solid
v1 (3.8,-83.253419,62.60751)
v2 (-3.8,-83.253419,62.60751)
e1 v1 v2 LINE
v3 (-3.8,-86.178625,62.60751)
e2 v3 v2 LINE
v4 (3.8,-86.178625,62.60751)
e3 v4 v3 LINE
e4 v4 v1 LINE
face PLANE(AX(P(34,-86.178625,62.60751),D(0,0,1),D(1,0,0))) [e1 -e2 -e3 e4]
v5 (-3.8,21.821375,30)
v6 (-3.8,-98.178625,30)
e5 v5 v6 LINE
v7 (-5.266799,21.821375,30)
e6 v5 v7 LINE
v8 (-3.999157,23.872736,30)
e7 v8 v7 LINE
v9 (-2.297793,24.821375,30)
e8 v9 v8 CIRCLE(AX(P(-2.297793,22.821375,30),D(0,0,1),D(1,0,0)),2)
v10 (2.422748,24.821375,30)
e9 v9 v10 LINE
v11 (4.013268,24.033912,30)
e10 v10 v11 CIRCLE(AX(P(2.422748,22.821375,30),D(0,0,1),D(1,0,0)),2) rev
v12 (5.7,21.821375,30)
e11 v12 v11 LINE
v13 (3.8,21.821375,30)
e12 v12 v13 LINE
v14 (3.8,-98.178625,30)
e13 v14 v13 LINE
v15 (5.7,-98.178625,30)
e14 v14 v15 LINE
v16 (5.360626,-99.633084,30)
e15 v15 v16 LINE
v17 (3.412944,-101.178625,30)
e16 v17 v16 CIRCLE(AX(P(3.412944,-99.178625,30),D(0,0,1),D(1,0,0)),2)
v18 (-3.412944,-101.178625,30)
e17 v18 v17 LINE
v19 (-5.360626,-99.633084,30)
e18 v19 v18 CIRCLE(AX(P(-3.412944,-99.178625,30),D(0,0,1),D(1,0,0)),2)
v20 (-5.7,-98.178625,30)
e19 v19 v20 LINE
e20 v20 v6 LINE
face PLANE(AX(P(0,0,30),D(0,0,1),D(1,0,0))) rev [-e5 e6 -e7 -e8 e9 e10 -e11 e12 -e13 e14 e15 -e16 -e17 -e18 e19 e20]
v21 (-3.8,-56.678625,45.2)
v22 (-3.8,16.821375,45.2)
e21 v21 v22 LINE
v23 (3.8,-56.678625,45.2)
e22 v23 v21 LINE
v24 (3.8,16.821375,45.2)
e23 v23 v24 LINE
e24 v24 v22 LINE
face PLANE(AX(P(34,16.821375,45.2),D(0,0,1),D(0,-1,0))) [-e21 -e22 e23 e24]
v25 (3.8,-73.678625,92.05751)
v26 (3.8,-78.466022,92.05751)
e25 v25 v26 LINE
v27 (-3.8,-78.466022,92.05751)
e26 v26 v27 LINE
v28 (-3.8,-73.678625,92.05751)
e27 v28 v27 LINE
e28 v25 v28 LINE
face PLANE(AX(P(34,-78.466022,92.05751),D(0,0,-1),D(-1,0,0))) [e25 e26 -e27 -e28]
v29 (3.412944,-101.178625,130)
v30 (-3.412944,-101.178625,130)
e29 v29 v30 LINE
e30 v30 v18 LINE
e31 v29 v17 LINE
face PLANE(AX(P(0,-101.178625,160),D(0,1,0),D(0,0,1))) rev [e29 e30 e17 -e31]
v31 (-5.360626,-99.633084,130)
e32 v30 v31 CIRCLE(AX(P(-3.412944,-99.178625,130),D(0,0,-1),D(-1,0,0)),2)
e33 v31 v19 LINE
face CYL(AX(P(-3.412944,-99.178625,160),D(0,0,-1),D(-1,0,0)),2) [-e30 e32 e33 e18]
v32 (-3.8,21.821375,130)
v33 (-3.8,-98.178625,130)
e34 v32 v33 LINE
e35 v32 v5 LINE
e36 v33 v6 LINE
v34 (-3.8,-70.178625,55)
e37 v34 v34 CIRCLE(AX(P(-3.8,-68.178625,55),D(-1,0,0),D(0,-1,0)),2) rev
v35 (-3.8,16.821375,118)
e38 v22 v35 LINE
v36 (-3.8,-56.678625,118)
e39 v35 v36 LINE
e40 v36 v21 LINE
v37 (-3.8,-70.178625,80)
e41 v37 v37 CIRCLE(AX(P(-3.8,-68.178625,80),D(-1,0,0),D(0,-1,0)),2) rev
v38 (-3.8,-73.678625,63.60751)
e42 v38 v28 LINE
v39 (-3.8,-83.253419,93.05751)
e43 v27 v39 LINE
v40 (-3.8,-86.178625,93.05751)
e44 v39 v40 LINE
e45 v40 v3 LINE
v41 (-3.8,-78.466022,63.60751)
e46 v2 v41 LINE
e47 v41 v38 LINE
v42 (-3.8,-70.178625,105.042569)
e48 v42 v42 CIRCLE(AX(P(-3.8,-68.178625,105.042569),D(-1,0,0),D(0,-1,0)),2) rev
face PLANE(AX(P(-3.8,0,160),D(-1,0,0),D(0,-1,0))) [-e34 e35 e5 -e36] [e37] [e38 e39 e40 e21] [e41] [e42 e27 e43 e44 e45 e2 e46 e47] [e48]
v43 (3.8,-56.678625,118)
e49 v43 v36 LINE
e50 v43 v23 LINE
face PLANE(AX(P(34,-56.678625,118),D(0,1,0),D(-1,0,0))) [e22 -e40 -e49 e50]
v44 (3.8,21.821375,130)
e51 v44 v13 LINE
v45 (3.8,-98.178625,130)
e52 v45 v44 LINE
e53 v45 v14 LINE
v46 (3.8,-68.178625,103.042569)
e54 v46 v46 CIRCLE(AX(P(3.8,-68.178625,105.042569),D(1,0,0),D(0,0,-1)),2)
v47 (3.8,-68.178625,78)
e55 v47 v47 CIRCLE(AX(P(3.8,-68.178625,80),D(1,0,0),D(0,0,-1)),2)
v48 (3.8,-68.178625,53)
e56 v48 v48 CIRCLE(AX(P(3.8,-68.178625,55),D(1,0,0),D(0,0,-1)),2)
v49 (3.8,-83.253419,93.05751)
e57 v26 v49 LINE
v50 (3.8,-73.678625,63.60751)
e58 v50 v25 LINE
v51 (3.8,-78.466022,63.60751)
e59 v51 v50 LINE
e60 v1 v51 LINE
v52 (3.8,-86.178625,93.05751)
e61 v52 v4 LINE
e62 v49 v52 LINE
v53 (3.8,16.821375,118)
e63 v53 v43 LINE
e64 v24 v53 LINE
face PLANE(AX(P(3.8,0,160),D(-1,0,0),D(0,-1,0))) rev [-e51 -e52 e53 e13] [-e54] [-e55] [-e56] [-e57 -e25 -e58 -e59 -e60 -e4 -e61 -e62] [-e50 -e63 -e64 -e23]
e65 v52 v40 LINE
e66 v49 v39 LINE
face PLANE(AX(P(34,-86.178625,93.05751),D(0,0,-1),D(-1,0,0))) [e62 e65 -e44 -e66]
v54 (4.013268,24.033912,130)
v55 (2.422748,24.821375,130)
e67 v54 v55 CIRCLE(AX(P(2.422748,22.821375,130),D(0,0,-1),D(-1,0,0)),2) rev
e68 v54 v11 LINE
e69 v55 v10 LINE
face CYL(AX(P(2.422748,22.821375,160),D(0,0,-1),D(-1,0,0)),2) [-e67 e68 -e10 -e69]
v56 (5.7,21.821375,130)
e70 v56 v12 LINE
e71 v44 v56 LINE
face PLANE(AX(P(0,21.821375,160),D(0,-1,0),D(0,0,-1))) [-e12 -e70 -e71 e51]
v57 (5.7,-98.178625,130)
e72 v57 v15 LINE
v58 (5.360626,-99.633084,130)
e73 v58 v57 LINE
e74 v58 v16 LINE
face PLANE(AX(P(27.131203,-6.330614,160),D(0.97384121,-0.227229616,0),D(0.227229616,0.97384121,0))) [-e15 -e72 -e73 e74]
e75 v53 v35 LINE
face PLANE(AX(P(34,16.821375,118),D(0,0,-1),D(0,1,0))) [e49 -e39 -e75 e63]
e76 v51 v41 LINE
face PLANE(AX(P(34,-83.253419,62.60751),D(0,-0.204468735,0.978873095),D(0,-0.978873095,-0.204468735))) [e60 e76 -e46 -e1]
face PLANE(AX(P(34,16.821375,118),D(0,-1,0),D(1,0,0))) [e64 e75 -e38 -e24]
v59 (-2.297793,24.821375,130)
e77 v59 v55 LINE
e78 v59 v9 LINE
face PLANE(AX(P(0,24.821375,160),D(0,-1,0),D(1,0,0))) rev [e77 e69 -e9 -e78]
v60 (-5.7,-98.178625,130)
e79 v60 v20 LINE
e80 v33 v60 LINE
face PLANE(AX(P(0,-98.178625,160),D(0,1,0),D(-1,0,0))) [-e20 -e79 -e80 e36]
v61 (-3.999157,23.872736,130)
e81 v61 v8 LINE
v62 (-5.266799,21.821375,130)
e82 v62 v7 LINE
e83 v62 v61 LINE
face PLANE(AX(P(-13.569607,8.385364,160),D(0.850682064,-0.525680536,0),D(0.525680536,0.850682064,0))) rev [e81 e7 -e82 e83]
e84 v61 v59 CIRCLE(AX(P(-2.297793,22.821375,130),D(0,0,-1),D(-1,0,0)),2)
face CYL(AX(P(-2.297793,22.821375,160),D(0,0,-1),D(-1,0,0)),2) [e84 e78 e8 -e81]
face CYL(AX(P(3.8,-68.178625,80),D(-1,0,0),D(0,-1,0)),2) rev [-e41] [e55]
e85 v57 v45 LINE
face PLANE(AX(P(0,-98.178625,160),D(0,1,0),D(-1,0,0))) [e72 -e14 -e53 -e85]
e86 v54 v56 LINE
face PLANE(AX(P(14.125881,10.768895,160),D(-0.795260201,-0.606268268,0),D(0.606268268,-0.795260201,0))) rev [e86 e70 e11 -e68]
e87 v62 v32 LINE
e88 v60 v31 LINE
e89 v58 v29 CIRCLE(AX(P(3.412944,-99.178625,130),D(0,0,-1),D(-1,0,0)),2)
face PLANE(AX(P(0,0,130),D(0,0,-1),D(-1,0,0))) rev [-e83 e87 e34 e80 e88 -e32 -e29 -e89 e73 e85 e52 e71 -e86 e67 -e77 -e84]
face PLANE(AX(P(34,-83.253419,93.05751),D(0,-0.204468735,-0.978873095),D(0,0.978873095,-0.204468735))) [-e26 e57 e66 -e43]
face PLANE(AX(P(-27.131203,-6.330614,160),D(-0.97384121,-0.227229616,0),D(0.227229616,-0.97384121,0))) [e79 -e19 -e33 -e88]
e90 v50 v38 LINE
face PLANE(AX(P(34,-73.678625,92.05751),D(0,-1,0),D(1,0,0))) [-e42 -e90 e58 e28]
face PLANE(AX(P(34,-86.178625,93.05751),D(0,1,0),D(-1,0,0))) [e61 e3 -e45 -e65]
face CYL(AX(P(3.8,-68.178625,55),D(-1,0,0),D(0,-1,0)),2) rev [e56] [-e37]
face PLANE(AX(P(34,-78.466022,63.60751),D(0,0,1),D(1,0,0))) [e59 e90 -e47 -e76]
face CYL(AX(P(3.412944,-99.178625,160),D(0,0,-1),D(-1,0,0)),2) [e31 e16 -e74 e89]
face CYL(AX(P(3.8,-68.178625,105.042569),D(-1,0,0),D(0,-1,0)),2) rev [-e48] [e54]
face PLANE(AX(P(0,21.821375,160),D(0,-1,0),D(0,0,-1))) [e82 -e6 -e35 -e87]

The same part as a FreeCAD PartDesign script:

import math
import FreeCAD as App
import Part
import Sketcher
from FreeCAD import Vector

doc = App.newDocument("Part")
body = doc.addObject("PartDesign::Body", "Body")

sketch1 = body.newObject("Sketcher::SketchObject", "Sketch")
sketch1.AttachmentSupport = (doc.getObject("XY_Plane"), [""])
sketch1.MapMode = "FlatFace"
sketch1.addGeometry(Part.LineSegment(Vector(-3.8, 21.8, 0), Vector(-3.8, -98.2, 0)), False)
sketch1.addGeometry(Part.LineSegment(Vector(-3.8, -98.2, 0), Vector(-5.7, -98.2, 0)), False)
sketch1.addGeometry(Part.LineSegment(Vector(-5.7, -98.2, 0), Vector(-5.4, -99.6, 0)), False)
sketch1.addGeometry(Part.ArcOfCircle(Part.Circle(Vector(-3.4, -99.2, 0), Vector(0, 0, 1), 2), math.radians(-167), math.radians(-90)), False)
sketch1.addGeometry(Part.LineSegment(Vector(-3.4, -101.2, 0), Vector(3.4, -101.2, 0)), False)
sketch1.addGeometry(Part.ArcOfCircle(Part.Circle(Vector(3.4, -99.2, 0), Vector(0, 0, 1), 2), math.radians(-90), math.radians(-13)), False)
sketch1.addGeometry(Part.LineSegment(Vector(5.4, -99.6, 0), Vector(5.7, -98.2, 0)), False)
sketch1.addGeometry(Part.LineSegment(Vector(5.7, -98.2, 0), Vector(3.8, -98.2, 0)), False)
sketch1.addGeometry(Part.LineSegment(Vector(3.8, -98.2, 0), Vector(3.8, 21.8, 0)), False)
sketch1.addGeometry(Part.LineSegment(Vector(3.8, 21.8, 0), Vector(5.7, 21.8, 0)), False)
sketch1.addGeometry(Part.LineSegment(Vector(5.7, 21.8, 0), Vector(4, 24, 0)), False)
sketch1.addGeometry(Part.ArcOfCircle(Part.Circle(Vector(2.4, 22.8, 0), Vector(0, 0, 1), 2), math.radians(37), math.radians(90)), False)
sketch1.addGeometry(Part.LineSegment(Vector(2.4, 24.8, 0), Vector(-2.3, 24.8, 0)), False)
sketch1.addGeometry(Part.ArcOfCircle(Part.Circle(Vector(-2.3, 22.8, 0), Vector(0, 0, 1), 2), math.radians(90), math.radians(148)), False)
sketch1.addGeometry(Part.LineSegment(Vector(-4, 23.9, 0), Vector(-5.3, 21.8, 0)), False)
sketch1.addGeometry(Part.LineSegment(Vector(-5.3, 21.8, 0), Vector(-3.8, 21.8, 0)), False)
sketch1.addConstraint(Sketcher.Constraint("Coincident", 0, 2, 1, 1))
sketch1.addConstraint(Sketcher.Constraint("Coincident", 1, 2, 2, 1))
sketch1.addConstraint(Sketcher.Constraint("Tangent", 2, 2, 3, 1))
sketch1.addConstraint(Sketcher.Constraint("Tangent", 3, 2, 4, 1))
sketch1.addConstraint(Sketcher.Constraint("Tangent", 4, 2, 5, 1))
sketch1.addConstraint(Sketcher.Constraint("Tangent", 5, 2, 6, 1))
sketch1.addConstraint(Sketcher.Constraint("Coincident", 6, 2, 7, 1))
sketch1.addConstraint(Sketcher.Constraint("Coincident", 7, 2, 8, 1))
sketch1.addConstraint(Sketcher.Constraint("Coincident", 8, 2, 9, 1))
sketch1.addConstraint(Sketcher.Constraint("Coincident", 9, 2, 10, 1))
sketch1.addConstraint(Sketcher.Constraint("Tangent", 10, 2, 11, 1))
sketch1.addConstraint(Sketcher.Constraint("Tangent", 11, 2, 12, 1))
sketch1.addConstraint(Sketcher.Constraint("Tangent", 12, 2, 13, 1))
sketch1.addConstraint(Sketcher.Constraint("Tangent", 13, 2, 14, 1))
sketch1.addConstraint(Sketcher.Constraint("Coincident", 14, 2, 15, 1))
sketch1.addConstraint(Sketcher.Constraint("Coincident", 15, 2, 0, 1))
sketch1.addConstraint(Sketcher.Constraint("Vertical", 0))
sketch1.addConstraint(Sketcher.Constraint("Horizontal", 1))
sketch1.addConstraint(Sketcher.Constraint("Horizontal", 4))
sketch1.addConstraint(Sketcher.Constraint("Horizontal", 7))
sketch1.addConstraint(Sketcher.Constraint("Vertical", 8))
sketch1.addConstraint(Sketcher.Constraint("Horizontal", 9))
sketch1.addConstraint(Sketcher.Constraint("Horizontal", 12))
sketch1.addConstraint(Sketcher.Constraint("Horizontal", 15))
sketch1.addConstraint(Sketcher.Constraint("Equal", 3, 5))
sketch1.addConstraint(Sketcher.Constraint("Equal", 5, 11))
sketch1.addConstraint(Sketcher.Constraint("Equal", 11, 13))
sketch1.addConstraint(Sketcher.Constraint("Symmetric", 2, 2, 5, 2, -2))
sketch1.addConstraint(Sketcher.Constraint("Symmetric", 0, 2, 7, 2, -2))
sketch1.addConstraint(Sketcher.Constraint("Horizontal", 9, 2, 14, 2))
sketch1.addConstraint(Sketcher.Constraint("Vertical", 6, 2, 9, 2))
sketch1.addConstraint(Sketcher.Constraint("Radius", 3, 2.0))
sketch1.addConstraint(Sketcher.Constraint("DistanceY", 0, 2, 0, 1, 120.0))
sketch1.addConstraint(Sketcher.Constraint("DistanceX", 1, 2, 1, 1, 1.9))
sketch1.addConstraint(Sketcher.Constraint("DistanceY", 5, 3, 11, 3, 122.0))
sketch1.addConstraint(Sketcher.Constraint("DistanceY", 3, 3, 0, 2, 1.0))
sketch1.addConstraint(Sketcher.Constraint("DistanceX", 0, 2, -1, 1, 3.8))
sketch1.addConstraint(Sketcher.Constraint("DistanceX", 15, 1, 15, 2, 1.466799))
sketch1.addConstraint(Sketcher.Constraint("DistanceX", 12, 2, 12, 1, 4.720541))
sketch1.addConstraint(Sketcher.Constraint("Distance", 2, 1.493528))
sketch1.addConstraint(Sketcher.Constraint("Distance", 14, 2.411431))
sketch1.addConstraint(Sketcher.Constraint("DistanceY", -1, 1, 10, 2, 24.033912))
pad1 = body.newObject("PartDesign::Pad", "Pad")
pad1.Profile = sketch1
pad1.Length = 160

sketch2 = body.newObject("Sketcher::SketchObject", "Sketch001")
sketch2.AttachmentSupport = (doc.getObject("XY_Plane"), [""])
sketch2.MapMode = "FlatFace"
sketch2.addGeometry(Part.LineSegment(Vector(-4, 22, 0), Vector(-4, -98, 0)), False)
sketch2.addGeometry(Part.LineSegment(Vector(-4, -98, 0), Vector(4, -98, 0)), False)
sketch2.addGeometry(Part.LineSegment(Vector(4, -98, 0), Vector(4, 22, 0)), False)
sketch2.addGeometry(Part.LineSegment(Vector(4, 22, 0), Vector(-4, 22, 0)), False)
sketch2.addConstraint(Sketcher.Constraint("Coincident", 0, 2, 1, 1))
sketch2.addConstraint(Sketcher.Constraint("Coincident", 1, 2, 2, 1))
sketch2.addConstraint(Sketcher.Constraint("Coincident", 2, 2, 3, 1))
sketch2.addConstraint(Sketcher.Constraint("Coincident", 3, 2, 0, 1))
sketch2.addConstraint(Sketcher.Constraint("Vertical", 0))
sketch2.addConstraint(Sketcher.Constraint("Horizontal", 1))
sketch2.addConstraint(Sketcher.Constraint("Vertical", 2))
sketch2.addConstraint(Sketcher.Constraint("Horizontal", 3))
sketch2.addConstraint(Sketcher.Constraint("DistanceY", 0, 2, 0, 1, 120.0))
sketch2.addConstraint(Sketcher.Constraint("DistanceX", 1, 1, 1, 2, 7.6))
sketch2.addConstraint(Sketcher.Constraint("DistanceX", 0, 2, -1, 1, 3.8))
sketch2.addConstraint(Sketcher.Constraint("DistanceY", 0, 2, -1, 1, 98.178625))
pocket1 = body.newObject("PartDesign::Pocket", "Pocket")
pocket1.Profile = sketch2
pocket1.Length = 30
pocket1.Reversed = True

sketch3 = body.newObject("Sketcher::SketchObject", "Sketch002")
sketch3.AttachmentSupport = (doc.getObject("XY_Plane"), [""])
sketch3.MapMode = "FlatFace"
sketch3.AttachmentOffset = App.Placement(Vector(0, 0, 160), App.Rotation())
sketch3.addGeometry(Part.LineSegment(Vector(-4, 22, 0), Vector(4, 22, 0)), False)
sketch3.addGeometry(Part.LineSegment(Vector(4, 22, 0), Vector(4, -98, 0)), False)
sketch3.addGeometry(Part.LineSegment(Vector(4, -98, 0), Vector(-4, -98, 0)), False)
sketch3.addGeometry(Part.LineSegment(Vector(-4, -98, 0), Vector(-4, 22, 0)), False)
sketch3.addConstraint(Sketcher.Constraint("Coincident", 0, 2, 1, 1))
sketch3.addConstraint(Sketcher.Constraint("Coincident", 1, 2, 2, 1))
sketch3.addConstraint(Sketcher.Constraint("Coincident", 2, 2, 3, 1))
sketch3.addConstraint(Sketcher.Constraint("Coincident", 3, 2, 0, 1))
sketch3.addConstraint(Sketcher.Constraint("Horizontal", 0))
sketch3.addConstraint(Sketcher.Constraint("Vertical", 1))
sketch3.addConstraint(Sketcher.Constraint("Horizontal", 2))
sketch3.addConstraint(Sketcher.Constraint("Vertical", 3))
sketch3.addConstraint(Sketcher.Constraint("DistanceY", 1, 2, 1, 1, 120.0))
sketch3.addConstraint(Sketcher.Constraint("DistanceX", 0, 1, 0, 2, 7.6))
sketch3.addConstraint(Sketcher.Constraint("DistanceX", -1, 1, 0, 2, 3.8))
sketch3.addConstraint(Sketcher.Constraint("DistanceY", -1, 1, 0, 2, 21.821375))
pocket2 = body.newObject("PartDesign::Pocket", "Pocket001")
pocket2.Profile = sketch3
pocket2.Length = 30

sketch4 = body.newObject("Sketcher::SketchObject", "Sketch003")
sketch4.AttachmentSupport = (doc.getObject("YZ_Plane"), [""])
sketch4.MapMode = "FlatFace"
sketch4.AttachmentOffset = App.Placement(Vector(0, 0, 3.8), App.Rotation())
sketch4.addGeometry(Part.Circle(Vector(-38.2, 80, 0), Vector(0, 0, 1), 2), False)
sketch4.addGeometry(Part.Circle(Vector(-8.2, 80, 0), Vector(0, 0, 1), 2), False)
sketch4.addGeometry(Part.Circle(Vector(-68.2, 80, 0), Vector(0, 0, 1), 2), False)
sketch4.addGeometry(Part.Circle(Vector(-68.2, 55, 0), Vector(0, 0, 1), 2), False)
sketch4.addGeometry(Part.Circle(Vector(-38.2, 55, 0), Vector(0, 0, 1), 2), False)
sketch4.addGeometry(Part.Circle(Vector(-8.2, 55, 0), Vector(0, 0, 1), 2), False)
sketch4.addGeometry(Part.Circle(Vector(-68.2, 105, 0), Vector(0, 0, 1), 2), False)
sketch4.addGeometry(Part.Circle(Vector(-38.2, 105, 0), Vector(0, 0, 1), 2), False)
sketch4.addGeometry(Part.Circle(Vector(-8.2, 105, 0), Vector(0, 0, 1), 2), False)
sketch4.addConstraint(Sketcher.Constraint("Equal", 0, 1))
sketch4.addConstraint(Sketcher.Constraint("Equal", 1, 2))
sketch4.addConstraint(Sketcher.Constraint("Equal", 2, 3))
sketch4.addConstraint(Sketcher.Constraint("Equal", 3, 4))
sketch4.addConstraint(Sketcher.Constraint("Equal", 4, 5))
sketch4.addConstraint(Sketcher.Constraint("Equal", 5, 6))
sketch4.addConstraint(Sketcher.Constraint("Equal", 6, 7))
sketch4.addConstraint(Sketcher.Constraint("Equal", 7, 8))
sketch4.addConstraint(Sketcher.Constraint("Horizontal", 0, 3, 1, 3))
sketch4.addConstraint(Sketcher.Constraint("Horizontal", 1, 3, 2, 3))
sketch4.addConstraint(Sketcher.Constraint("Horizontal", 3, 3, 4, 3))
sketch4.addConstraint(Sketcher.Constraint("Horizontal", 4, 3, 5, 3))
sketch4.addConstraint(Sketcher.Constraint("Horizontal", 6, 3, 7, 3))
sketch4.addConstraint(Sketcher.Constraint("Horizontal", 7, 3, 8, 3))
sketch4.addConstraint(Sketcher.Constraint("Vertical", 2, 3, 3, 3))
sketch4.addConstraint(Sketcher.Constraint("Vertical", 0, 3, 4, 3))
sketch4.addConstraint(Sketcher.Constraint("Vertical", 1, 3, 5, 3))
sketch4.addConstraint(Sketcher.Constraint("Vertical", 3, 3, 6, 3))
sketch4.addConstraint(Sketcher.Constraint("Vertical", 4, 3, 7, 3))
sketch4.addConstraint(Sketcher.Constraint("Vertical", 5, 3, 8, 3))
sketch4.addConstraint(Sketcher.Constraint("Diameter", 0, 4.0))
sketch4.addConstraint(Sketcher.Constraint("DistanceY", -1, 1, 0, 3, 80.0))
sketch4.addConstraint(Sketcher.Constraint("DistanceY", -1, 1, 3, 3, 55.0))
sketch4.addConstraint(Sketcher.Constraint("DistanceX", 0, 3, 1, 3, 30.0))
sketch4.addConstraint(Sketcher.Constraint("DistanceX", 2, 3, 0, 3, 30.0))
sketch4.addConstraint(Sketcher.Constraint("DistanceY", -1, 1, 6, 3, 105.042569))
sketch4.addConstraint(Sketcher.Constraint("DistanceX", 0, 3, -1, 1, 38.178625))
pocket3 = body.newObject("PartDesign::Pocket", "Pocket002")
pocket3.Profile = sketch4
pocket3.Length = 70

sketch5 = body.newObject("Sketcher::SketchObject", "Sketch004")
sketch5.AttachmentSupport = (doc.getObject("YZ_Plane"), [""])
sketch5.MapMode = "FlatFace"
sketch5.addGeometry(Part.LineSegment(Vector(25, 30, 0), Vector(-105, 30, 0)), False)
sketch5.addGeometry(Part.LineSegment(Vector(-105, 30, 0), Vector(-105, -15, 0)), False)
sketch5.addGeometry(Part.LineSegment(Vector(-105, -15, 0), Vector(25, -15, 0)), False)
sketch5.addGeometry(Part.LineSegment(Vector(25, -15, 0), Vector(25, 30, 0)), False)
sketch5.addGeometry(Part.LineSegment(Vector(25, 167, 0), Vector(-105, 167, 0)), False)
sketch5.addGeometry(Part.LineSegment(Vector(-105, 167, 0), Vector(-105, 130, 0)), False)
sketch5.addGeometry(Part.LineSegment(Vector(-105, 130, 0), Vector(25, 130, 0)), False)
sketch5.addGeometry(Part.LineSegment(Vector(25, 130, 0), Vector(25, 167, 0)), False)
sketch5.addConstraint(Sketcher.Constraint("Coincident", 0, 2, 1, 1))
sketch5.addConstraint(Sketcher.Constraint("Coincident", 1, 2, 2, 1))
sketch5.addConstraint(Sketcher.Constraint("Coincident", 2, 2, 3, 1))
sketch5.addConstraint(Sketcher.Constraint("Coincident", 3, 2, 0, 1))
sketch5.addConstraint(Sketcher.Constraint("Coincident", 4, 2, 5, 1))
sketch5.addConstraint(Sketcher.Constraint("Coincident", 5, 2, 6, 1))
sketch5.addConstraint(Sketcher.Constraint("Coincident", 6, 2, 7, 1))
sketch5.addConstraint(Sketcher.Constraint("Coincident", 7, 2, 4, 1))
sketch5.addConstraint(Sketcher.Constraint("Horizontal", 0))
sketch5.addConstraint(Sketcher.Constraint("Vertical", 1))
sketch5.addConstraint(Sketcher.Constraint("Horizontal", 2))
sketch5.addConstraint(Sketcher.Constraint("Vertical", 3))
sketch5.addConstraint(Sketcher.Constraint("Horizontal", 4))
sketch5.addConstraint(Sketcher.Constraint("Vertical", 5))
sketch5.addConstraint(Sketcher.Constraint("Horizontal", 6))
sketch5.addConstraint(Sketcher.Constraint("Vertical", 7))
sketch5.addConstraint(Sketcher.Constraint("Vertical", 1, 2, 4, 2))
sketch5.addConstraint(Sketcher.Constraint("Vertical", 3, 2, 6, 2))
sketch5.addConstraint(Sketcher.Constraint("DistanceY", -1, 1, 0, 2, 30.0))
sketch5.addConstraint(Sketcher.Constraint("DistanceY", -1, 1, 5, 2, 130.0))
sketch5.addConstraint(Sketcher.Constraint("DistanceX", 0, 2, 0, 1, 129.478543))
sketch5.addConstraint(Sketcher.Constraint("DistanceY", 1, 2, 1, 1, 45.015345))
sketch5.addConstraint(Sketcher.Constraint("DistanceY", 5, 2, 5, 1, 37.192594))
sketch5.addConstraint(Sketcher.Constraint("DistanceX", 0, 2, -1, 1, 104.657168))
pocket4 = body.newObject("PartDesign::Pocket", "Pocket003")
pocket4.Profile = sketch5
pocket4.Type = "ThroughAll"
pocket4.Midplane = True

sketch6 = body.newObject("Sketcher::SketchObject", "Sketch005")
sketch6.AttachmentSupport = (doc.getObject("YZ_Plane"), [""])
sketch6.MapMode = "FlatFace"
sketch6.addGeometry(Part.LineSegment(Vector(16.8, 118, 0), Vector(-56.7, 118, 0)), False)
sketch6.addGeometry(Part.LineSegment(Vector(-56.7, 118, 0), Vector(-56.7, 45.2, 0)), False)
sketch6.addGeometry(Part.LineSegment(Vector(-56.7, 45.2, 0), Vector(16.8, 45.2, 0)), False)
sketch6.addGeometry(Part.LineSegment(Vector(16.8, 45.2, 0), Vector(16.8, 118, 0)), False)
sketch6.addGeometry(Part.LineSegment(Vector(-86.2, 93.1, 0), Vector(-86.2, 62.6, 0)), False)
sketch6.addGeometry(Part.LineSegment(Vector(-86.2, 62.6, 0), Vector(-83.3, 62.6, 0)), False)
sketch6.addGeometry(Part.LineSegment(Vector(-83.3, 62.6, 0), Vector(-78.5, 63.6, 0)), False)
sketch6.addGeometry(Part.LineSegment(Vector(-78.5, 63.6, 0), Vector(-73.7, 63.6, 0)), False)
sketch6.addGeometry(Part.LineSegment(Vector(-73.7, 63.6, 0), Vector(-73.7, 92.1, 0)), False)
sketch6.addGeometry(Part.LineSegment(Vector(-73.7, 92.1, 0), Vector(-78.5, 92.1, 0)), False)
sketch6.addGeometry(Part.LineSegment(Vector(-78.5, 92.1, 0), Vector(-83.3, 93.1, 0)), False)
sketch6.addGeometry(Part.LineSegment(Vector(-83.3, 93.1, 0), Vector(-86.2, 93.1, 0)), False)
sketch6.addConstraint(Sketcher.Constraint("Coincident", 0, 2, 1, 1))
sketch6.addConstraint(Sketcher.Constraint("Coincident", 1, 2, 2, 1))
sketch6.addConstraint(Sketcher.Constraint("Coincident", 2, 2, 3, 1))
sketch6.addConstraint(Sketcher.Constraint("Coincident", 3, 2, 0, 1))
sketch6.addConstraint(Sketcher.Constraint("Coincident", 4, 2, 5, 1))
sketch6.addConstraint(Sketcher.Constraint("Coincident", 5, 2, 6, 1))
sketch6.addConstraint(Sketcher.Constraint("Coincident", 6, 2, 7, 1))
sketch6.addConstraint(Sketcher.Constraint("Coincident", 7, 2, 8, 1))
sketch6.addConstraint(Sketcher.Constraint("Coincident", 8, 2, 9, 1))
sketch6.addConstraint(Sketcher.Constraint("Coincident", 9, 2, 10, 1))
sketch6.addConstraint(Sketcher.Constraint("Coincident", 10, 2, 11, 1))
sketch6.addConstraint(Sketcher.Constraint("Coincident", 11, 2, 4, 1))
sketch6.addConstraint(Sketcher.Constraint("Horizontal", 0))
sketch6.addConstraint(Sketcher.Constraint("Vertical", 1))
sketch6.addConstraint(Sketcher.Constraint("Horizontal", 2))
sketch6.addConstraint(Sketcher.Constraint("Vertical", 3))
sketch6.addConstraint(Sketcher.Constraint("Vertical", 4))
sketch6.addConstraint(Sketcher.Constraint("Horizontal", 5))
sketch6.addConstraint(Sketcher.Constraint("Horizontal", 7))
sketch6.addConstraint(Sketcher.Constraint("Vertical", 8))
sketch6.addConstraint(Sketcher.Constraint("Horizontal", 9))
sketch6.addConstraint(Sketcher.Constraint("Horizontal", 11))
sketch6.addConstraint(Sketcher.Constraint("Vertical", 6, 2, 9, 2))
sketch6.addConstraint(Sketcher.Constraint("Vertical", 5, 2, 10, 2))
sketch6.addConstraint(Sketcher.Constraint("Equal", 6, 10))
sketch6.addConstraint(Sketcher.Constraint("DistanceX", 0, 2, 0, 1, 73.5))
sketch6.addConstraint(Sketcher.Constraint("DistanceY", 1, 2, 1, 1, 72.8))
sketch6.addConstraint(Sketcher.Constraint("DistanceY", -1, 1, 0, 2, 118.0))
sketch6.addConstraint(Sketcher.Constraint("DistanceX", 4, 2, 2, 2, 103.0))
sketch6.addConstraint(Sketcher.Constraint("DistanceY", 5, 2, 6, 2, 1.0))
sketch6.addConstraint(Sketcher.Constraint("DistanceX", 7, 2, 1, 2, 17.0))
sketch6.addConstraint(Sketcher.Constraint("DistanceY", 4, 2, 4, 1, 30.45))
sketch6.addConstraint(Sketcher.Constraint("DistanceX", 5, 1, 5, 2, 2.925205))
sketch6.addConstraint(Sketcher.Constraint("DistanceX", 7, 1, 7, 2, 4.787397))
sketch6.addConstraint(Sketcher.Constraint("DistanceY", -1, 1, 4, 2, 62.60751))
sketch6.addConstraint(Sketcher.Constraint("DistanceX", 5, 2, -1, 1, 83.253419))
pocket5 = body.newObject("PartDesign::Pocket", "Pocket004")
pocket5.Profile = sketch6
pocket5.Type = "ThroughAll"
pocket5.Midplane = True

doc.recompute()
